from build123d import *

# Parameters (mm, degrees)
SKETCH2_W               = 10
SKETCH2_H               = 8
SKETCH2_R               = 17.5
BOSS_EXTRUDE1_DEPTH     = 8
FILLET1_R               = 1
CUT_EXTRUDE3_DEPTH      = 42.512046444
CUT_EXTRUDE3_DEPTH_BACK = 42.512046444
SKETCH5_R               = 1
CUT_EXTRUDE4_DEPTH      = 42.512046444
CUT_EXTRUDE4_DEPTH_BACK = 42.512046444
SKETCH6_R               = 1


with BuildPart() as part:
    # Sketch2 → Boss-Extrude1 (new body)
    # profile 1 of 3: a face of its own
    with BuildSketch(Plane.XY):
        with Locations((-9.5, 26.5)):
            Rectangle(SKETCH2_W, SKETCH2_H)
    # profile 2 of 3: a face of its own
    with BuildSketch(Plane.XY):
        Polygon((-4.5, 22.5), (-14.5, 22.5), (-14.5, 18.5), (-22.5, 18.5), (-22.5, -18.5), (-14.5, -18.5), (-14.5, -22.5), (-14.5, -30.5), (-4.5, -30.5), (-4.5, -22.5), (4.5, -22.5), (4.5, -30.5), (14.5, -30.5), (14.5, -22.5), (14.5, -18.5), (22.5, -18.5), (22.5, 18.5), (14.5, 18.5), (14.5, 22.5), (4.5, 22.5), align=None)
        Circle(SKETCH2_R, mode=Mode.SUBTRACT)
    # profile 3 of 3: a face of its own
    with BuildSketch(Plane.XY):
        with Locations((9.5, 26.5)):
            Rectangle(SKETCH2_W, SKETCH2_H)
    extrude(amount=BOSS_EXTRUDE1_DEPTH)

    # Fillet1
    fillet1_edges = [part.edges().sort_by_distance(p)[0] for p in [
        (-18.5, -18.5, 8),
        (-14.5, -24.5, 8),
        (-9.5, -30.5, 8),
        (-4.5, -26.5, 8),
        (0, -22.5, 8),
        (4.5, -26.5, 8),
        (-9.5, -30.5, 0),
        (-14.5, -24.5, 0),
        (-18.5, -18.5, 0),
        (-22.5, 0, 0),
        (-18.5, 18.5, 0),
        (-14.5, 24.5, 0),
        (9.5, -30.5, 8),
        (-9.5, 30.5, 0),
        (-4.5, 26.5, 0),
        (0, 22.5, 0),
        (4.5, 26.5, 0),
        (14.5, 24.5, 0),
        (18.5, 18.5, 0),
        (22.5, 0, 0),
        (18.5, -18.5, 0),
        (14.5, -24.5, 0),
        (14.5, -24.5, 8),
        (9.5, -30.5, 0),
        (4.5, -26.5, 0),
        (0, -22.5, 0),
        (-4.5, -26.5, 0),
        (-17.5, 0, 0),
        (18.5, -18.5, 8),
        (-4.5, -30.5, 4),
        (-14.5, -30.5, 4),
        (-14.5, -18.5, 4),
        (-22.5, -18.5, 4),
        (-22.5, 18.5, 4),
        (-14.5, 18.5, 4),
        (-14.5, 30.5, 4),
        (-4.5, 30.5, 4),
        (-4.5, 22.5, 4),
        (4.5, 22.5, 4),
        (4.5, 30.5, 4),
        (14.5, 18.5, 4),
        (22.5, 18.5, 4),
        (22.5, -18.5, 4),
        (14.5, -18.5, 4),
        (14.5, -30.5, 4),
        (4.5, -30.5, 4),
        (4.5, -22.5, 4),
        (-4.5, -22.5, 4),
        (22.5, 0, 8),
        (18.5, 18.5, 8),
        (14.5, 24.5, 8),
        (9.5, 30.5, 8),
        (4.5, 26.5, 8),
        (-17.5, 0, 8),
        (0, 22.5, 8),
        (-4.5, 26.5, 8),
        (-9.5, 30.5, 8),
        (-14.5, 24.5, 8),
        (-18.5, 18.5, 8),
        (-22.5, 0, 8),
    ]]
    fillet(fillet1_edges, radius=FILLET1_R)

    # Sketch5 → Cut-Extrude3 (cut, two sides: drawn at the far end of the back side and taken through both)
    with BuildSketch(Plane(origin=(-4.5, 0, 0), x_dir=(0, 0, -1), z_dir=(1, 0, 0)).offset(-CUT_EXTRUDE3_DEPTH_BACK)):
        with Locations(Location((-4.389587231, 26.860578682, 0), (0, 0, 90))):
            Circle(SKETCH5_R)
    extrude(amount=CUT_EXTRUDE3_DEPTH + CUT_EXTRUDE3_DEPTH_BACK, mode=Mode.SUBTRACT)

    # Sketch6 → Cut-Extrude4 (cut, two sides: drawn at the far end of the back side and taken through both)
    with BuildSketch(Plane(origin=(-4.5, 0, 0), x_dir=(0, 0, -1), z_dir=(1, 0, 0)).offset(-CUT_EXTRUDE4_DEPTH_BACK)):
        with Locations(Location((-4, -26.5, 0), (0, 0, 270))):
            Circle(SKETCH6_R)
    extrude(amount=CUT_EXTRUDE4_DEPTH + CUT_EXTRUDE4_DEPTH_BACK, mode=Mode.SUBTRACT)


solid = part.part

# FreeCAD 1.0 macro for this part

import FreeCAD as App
import Part
import Sketcher

V = App.Vector
Q = App.Units.Quantity


def edges_at(feature, points):
    """Names of the edges that pass closest to the given points."""
    edges = feature.Shape.Edges
    near = lambda p: min(range(len(edges)), key=lambda i: edges[i].distToShape(Part.Vertex(*p))[0])
    return sorted({f"Edge{near(p) + 1}" for p in points})


def add_polygon(sketch, points):
    """Adds a closed chain of lines whose ends are joined by coincident constraints."""
    first, n = sketch.GeometryCount, len(points)
    for a, b in zip(points, points[1:] + points[:1]):
        sketch.addGeometry(Part.LineSegment(App.Vector(*a, 0), App.Vector(*b, 0)), False)
    for i in range(n):
        sketch.addConstraint(Sketcher.Constraint("Coincident", first + i, 2, first + (i + 1) % n, 1))

doc = App.newDocument("Part")
body = doc.addObject("PartDesign::Body", "Body")

sketch1 = body.newObject("Sketcher::SketchObject", "Sketch")
sketch1.AttachmentSupport = (doc.getObject("XY_Plane"), [""])
sketch1.MapMode = "FlatFace"
add_polygon(sketch1, [(-14, 30), (-14, 18), (-22, 18), (-22, -18), (-14, -18), (-14, -30), (-4, -30), (-4, -22), (4, -22), (4, -30), (14, -30), (14, -18), (22, -18), (22, 18), (14, 18), (14, 30), (4, 30), (4, 22), (-4, 22), (-4, 30)])
sketch1.addGeometry(Part.Circle(V(0, 0, 0), V(0, 0, 1), 18), False)
sketch1.addConstraint(Sketcher.Constraint("Vertical", 0))
sketch1.addConstraint(Sketcher.Constraint("Horizontal", 1))
sketch1.addConstraint(Sketcher.Constraint("Vertical", 2))
sketch1.addConstraint(Sketcher.Constraint("Horizontal", 3))
sketch1.addConstraint(Sketcher.Constraint("Vertical", 4))
sketch1.addConstraint(Sketcher.Constraint("Horizontal", 5))
sketch1.addConstraint(Sketcher.Constraint("Vertical", 6))
sketch1.addConstraint(Sketcher.Constraint("Horizontal", 7))
sketch1.addConstraint(Sketcher.Constraint("Vertical", 8))
sketch1.addConstraint(Sketcher.Constraint("Horizontal", 9))
sketch1.addConstraint(Sketcher.Constraint("Vertical", 10))
sketch1.addConstraint(Sketcher.Constraint("Horizontal", 11))
sketch1.addConstraint(Sketcher.Constraint("Vertical", 12))
sketch1.addConstraint(Sketcher.Constraint("Horizontal", 13))
sketch1.addConstraint(Sketcher.Constraint("Vertical", 14))
sketch1.addConstraint(Sketcher.Constraint("Horizontal", 15))
sketch1.addConstraint(Sketcher.Constraint("Vertical", 16))
sketch1.addConstraint(Sketcher.Constraint("Horizontal", 17))
sketch1.addConstraint(Sketcher.Constraint("Vertical", 18))
sketch1.addConstraint(Sketcher.Constraint("Horizontal", 19))
sketch1.addConstraint(Sketcher.Constraint("Coincident", 20, 3, -1, 1))
sketch1.addConstraint(Sketcher.Constraint("Symmetric", 0, 2, 10, 2, -1, 1))
sketch1.addConstraint(Sketcher.Constraint("Symmetric", 2, 2, 12, 2, -1, 1))
sketch1.addConstraint(Sketcher.Constraint("Symmetric", 4, 2, 14, 2, -1, 1))
sketch1.addConstraint(Sketcher.Constraint("Symmetric", 6, 2, 16, 2, -1, 1))
sketch1.addConstraint(Sketcher.Constraint("Symmetric", 8, 2, 18, 2, -1, 1))
sketch1.addConstraint(Sketcher.Constraint("Symmetric", 5, 2, 8, 2, -2))
sketch1.addConstraint(Sketcher.Constraint("Symmetric", 3, 2, 10, 2, -2))
sketch1.addConstraint(Sketcher.Constraint("Equal", 13, 6))
sketch1.addConstraint(Sketcher.Constraint("Diameter", 20, Q("35 mm")))
sketch1.addConstraint(Sketcher.Constraint("DistanceX", 1, 2, 1, 1, Q("8 mm")))
sketch1.addConstraint(Sketcher.Constraint("DistanceX", 5, 1, 5, 2, Q("10 mm")))
sketch1.addConstraint(Sketcher.Constraint("DistanceX", 7, 1, 7, 2, Q("9 mm")))
sketch1.addConstraint(Sketcher.Constraint("DistanceY", 0, 2, 0, 1, Q("12 mm")))
sketch1.addConstraint(Sketcher.Constraint("DistanceY", 2, 2, 2, 1, Q("37 mm")))
pad1 = body.newObject("PartDesign::Pad", "Pad")
pad1.Profile = sketch1
pad1.Length = 8
doc.recompute()

fillet = body.newObject("PartDesign::Fillet", "Fillet")
fillet.Base = (pad1, edges_at(pad1, [
    (-18.5, -18.5, 8),
    (-14.5, -24.5, 8),
    (-9.5, -30.5, 8),
    (-4.5, -26.5, 8),
    (0, -22.5, 8),
    (4.5, -26.5, 8),
    (-9.5, -30.5, 0),
    (-14.5, -24.5, 0),
    (-18.5, -18.5, 0),
    (-22.5, 0, 0),
    (-18.5, 18.5, 0),
    (-14.5, 24.5, 0),
    (9.5, -30.5, 8),
    (-9.5, 30.5, 0),
    (-4.5, 26.5, 0),
    (0, 22.5, 0),
    (4.5, 26.5, 0),
    (14.5, 24.5, 0),
    (18.5, 18.5, 0),
    (22.5, 0, 0),
    (18.5, -18.5, 0),
    (14.5, -24.5, 0),
    (14.5, -24.5, 8),
    (9.5, -30.5, 0),
    (4.5, -26.5, 0),
    (0, -22.5, 0),
    (-4.5, -26.5, 0),
    (-17.5, 0, 0),
    (18.5, -18.5, 8),
    (-4.5, -30.5, 4),
    (-14.5, -30.5, 4),
    (-14.5, -18.5, 4),
    (-22.5, -18.5, 4),
    (-22.5, 18.5, 4),
    (-14.5, 18.5, 4),
    (-14.5, 30.5, 4),
    (-4.5, 30.5, 4),
    (-4.5, 22.5, 4),
    (4.5, 22.5, 4),
    (4.5, 30.5, 4),
    (14.5, 18.5, 4),
    (22.5, 18.5, 4),
    (22.5, -18.5, 4),
    (14.5, -18.5, 4),
    (14.5, -30.5, 4),
    (4.5, -30.5, 4),
    (4.5, -22.5, 4),
    (-4.5, -22.5, 4),
    (22.5, 0, 8),
    (18.5, 18.5, 8),
    (14.5, 24.5, 8),
    (9.5, 30.5, 8),
    (4.5, 26.5, 8),
    (-17.5, 0, 8),
    (0, 22.5, 8),
    (-4.5, 26.5, 8),
    (-9.5, 30.5, 8),
    (-14.5, 24.5, 8),
    (-18.5, 18.5, 8),
    (-22.5, 0, 8),
]))
fillet.Radius = 1

sketch2 = body.newObject("Sketcher::SketchObject", "Sketch001")
sketch2.AttachmentSupport = (doc.getObject("YZ_Plane"), [""])
sketch2.MapMode = "FlatFace"
sketch2.AttachmentOffset = App.Placement(V(0, 0, -4.5), App.Rotation())
sketch2.addGeometry(Part.Circle(V(26.9, 4.4, 0), V(0, 0, 1), 1), False)
sketch2.addConstraint(Sketcher.Constraint("Diameter", 0, Q("2 mm")))
sketch2.addConstraint(Sketcher.Constraint("DistanceX", -1, 1, 0, 3, Q("26.860579 mm")))
sketch2.addConstraint(Sketcher.Constraint("DistanceY", -1, 1, 0, 3, Q("4.389587 mm")))
pocket1 = body.newObject("PartDesign::Pocket", "Pocket")
pocket1.Profile = sketch2
pocket1.Type = "ThroughAll"
pocket1.Midplane = True

sketch3 = body.newObject("Sketcher::SketchObject", "Sketch002")
sketch3.AttachmentSupport = (doc.getObject("YZ_Plane"), [""])
sketch3.MapMode = "FlatFace"
sketch3.AttachmentOffset = App.Placement(V(0, 0, -4.5), App.Rotation())
sketch3.addGeometry(Part.Circle(V(-26.5, 4, 0), V(0, 0, 1), 1), False)
sketch3.addConstraint(Sketcher.Constraint("Diameter", 0, Q("2 mm")))
sketch3.addConstraint(Sketcher.Constraint("DistanceY", -1, 1, 0, 3, Q("4 mm")))
sketch3.addConstraint(Sketcher.Constraint("DistanceX", 0, 3, -1, 1, Q("26.5 mm")))
pocket2 = body.newObject("PartDesign::Pocket", "Pocket001")
pocket2.Profile = sketch3
pocket2.Type = "ThroughAll"
pocket2.Midplane = True

doc.recompute()
